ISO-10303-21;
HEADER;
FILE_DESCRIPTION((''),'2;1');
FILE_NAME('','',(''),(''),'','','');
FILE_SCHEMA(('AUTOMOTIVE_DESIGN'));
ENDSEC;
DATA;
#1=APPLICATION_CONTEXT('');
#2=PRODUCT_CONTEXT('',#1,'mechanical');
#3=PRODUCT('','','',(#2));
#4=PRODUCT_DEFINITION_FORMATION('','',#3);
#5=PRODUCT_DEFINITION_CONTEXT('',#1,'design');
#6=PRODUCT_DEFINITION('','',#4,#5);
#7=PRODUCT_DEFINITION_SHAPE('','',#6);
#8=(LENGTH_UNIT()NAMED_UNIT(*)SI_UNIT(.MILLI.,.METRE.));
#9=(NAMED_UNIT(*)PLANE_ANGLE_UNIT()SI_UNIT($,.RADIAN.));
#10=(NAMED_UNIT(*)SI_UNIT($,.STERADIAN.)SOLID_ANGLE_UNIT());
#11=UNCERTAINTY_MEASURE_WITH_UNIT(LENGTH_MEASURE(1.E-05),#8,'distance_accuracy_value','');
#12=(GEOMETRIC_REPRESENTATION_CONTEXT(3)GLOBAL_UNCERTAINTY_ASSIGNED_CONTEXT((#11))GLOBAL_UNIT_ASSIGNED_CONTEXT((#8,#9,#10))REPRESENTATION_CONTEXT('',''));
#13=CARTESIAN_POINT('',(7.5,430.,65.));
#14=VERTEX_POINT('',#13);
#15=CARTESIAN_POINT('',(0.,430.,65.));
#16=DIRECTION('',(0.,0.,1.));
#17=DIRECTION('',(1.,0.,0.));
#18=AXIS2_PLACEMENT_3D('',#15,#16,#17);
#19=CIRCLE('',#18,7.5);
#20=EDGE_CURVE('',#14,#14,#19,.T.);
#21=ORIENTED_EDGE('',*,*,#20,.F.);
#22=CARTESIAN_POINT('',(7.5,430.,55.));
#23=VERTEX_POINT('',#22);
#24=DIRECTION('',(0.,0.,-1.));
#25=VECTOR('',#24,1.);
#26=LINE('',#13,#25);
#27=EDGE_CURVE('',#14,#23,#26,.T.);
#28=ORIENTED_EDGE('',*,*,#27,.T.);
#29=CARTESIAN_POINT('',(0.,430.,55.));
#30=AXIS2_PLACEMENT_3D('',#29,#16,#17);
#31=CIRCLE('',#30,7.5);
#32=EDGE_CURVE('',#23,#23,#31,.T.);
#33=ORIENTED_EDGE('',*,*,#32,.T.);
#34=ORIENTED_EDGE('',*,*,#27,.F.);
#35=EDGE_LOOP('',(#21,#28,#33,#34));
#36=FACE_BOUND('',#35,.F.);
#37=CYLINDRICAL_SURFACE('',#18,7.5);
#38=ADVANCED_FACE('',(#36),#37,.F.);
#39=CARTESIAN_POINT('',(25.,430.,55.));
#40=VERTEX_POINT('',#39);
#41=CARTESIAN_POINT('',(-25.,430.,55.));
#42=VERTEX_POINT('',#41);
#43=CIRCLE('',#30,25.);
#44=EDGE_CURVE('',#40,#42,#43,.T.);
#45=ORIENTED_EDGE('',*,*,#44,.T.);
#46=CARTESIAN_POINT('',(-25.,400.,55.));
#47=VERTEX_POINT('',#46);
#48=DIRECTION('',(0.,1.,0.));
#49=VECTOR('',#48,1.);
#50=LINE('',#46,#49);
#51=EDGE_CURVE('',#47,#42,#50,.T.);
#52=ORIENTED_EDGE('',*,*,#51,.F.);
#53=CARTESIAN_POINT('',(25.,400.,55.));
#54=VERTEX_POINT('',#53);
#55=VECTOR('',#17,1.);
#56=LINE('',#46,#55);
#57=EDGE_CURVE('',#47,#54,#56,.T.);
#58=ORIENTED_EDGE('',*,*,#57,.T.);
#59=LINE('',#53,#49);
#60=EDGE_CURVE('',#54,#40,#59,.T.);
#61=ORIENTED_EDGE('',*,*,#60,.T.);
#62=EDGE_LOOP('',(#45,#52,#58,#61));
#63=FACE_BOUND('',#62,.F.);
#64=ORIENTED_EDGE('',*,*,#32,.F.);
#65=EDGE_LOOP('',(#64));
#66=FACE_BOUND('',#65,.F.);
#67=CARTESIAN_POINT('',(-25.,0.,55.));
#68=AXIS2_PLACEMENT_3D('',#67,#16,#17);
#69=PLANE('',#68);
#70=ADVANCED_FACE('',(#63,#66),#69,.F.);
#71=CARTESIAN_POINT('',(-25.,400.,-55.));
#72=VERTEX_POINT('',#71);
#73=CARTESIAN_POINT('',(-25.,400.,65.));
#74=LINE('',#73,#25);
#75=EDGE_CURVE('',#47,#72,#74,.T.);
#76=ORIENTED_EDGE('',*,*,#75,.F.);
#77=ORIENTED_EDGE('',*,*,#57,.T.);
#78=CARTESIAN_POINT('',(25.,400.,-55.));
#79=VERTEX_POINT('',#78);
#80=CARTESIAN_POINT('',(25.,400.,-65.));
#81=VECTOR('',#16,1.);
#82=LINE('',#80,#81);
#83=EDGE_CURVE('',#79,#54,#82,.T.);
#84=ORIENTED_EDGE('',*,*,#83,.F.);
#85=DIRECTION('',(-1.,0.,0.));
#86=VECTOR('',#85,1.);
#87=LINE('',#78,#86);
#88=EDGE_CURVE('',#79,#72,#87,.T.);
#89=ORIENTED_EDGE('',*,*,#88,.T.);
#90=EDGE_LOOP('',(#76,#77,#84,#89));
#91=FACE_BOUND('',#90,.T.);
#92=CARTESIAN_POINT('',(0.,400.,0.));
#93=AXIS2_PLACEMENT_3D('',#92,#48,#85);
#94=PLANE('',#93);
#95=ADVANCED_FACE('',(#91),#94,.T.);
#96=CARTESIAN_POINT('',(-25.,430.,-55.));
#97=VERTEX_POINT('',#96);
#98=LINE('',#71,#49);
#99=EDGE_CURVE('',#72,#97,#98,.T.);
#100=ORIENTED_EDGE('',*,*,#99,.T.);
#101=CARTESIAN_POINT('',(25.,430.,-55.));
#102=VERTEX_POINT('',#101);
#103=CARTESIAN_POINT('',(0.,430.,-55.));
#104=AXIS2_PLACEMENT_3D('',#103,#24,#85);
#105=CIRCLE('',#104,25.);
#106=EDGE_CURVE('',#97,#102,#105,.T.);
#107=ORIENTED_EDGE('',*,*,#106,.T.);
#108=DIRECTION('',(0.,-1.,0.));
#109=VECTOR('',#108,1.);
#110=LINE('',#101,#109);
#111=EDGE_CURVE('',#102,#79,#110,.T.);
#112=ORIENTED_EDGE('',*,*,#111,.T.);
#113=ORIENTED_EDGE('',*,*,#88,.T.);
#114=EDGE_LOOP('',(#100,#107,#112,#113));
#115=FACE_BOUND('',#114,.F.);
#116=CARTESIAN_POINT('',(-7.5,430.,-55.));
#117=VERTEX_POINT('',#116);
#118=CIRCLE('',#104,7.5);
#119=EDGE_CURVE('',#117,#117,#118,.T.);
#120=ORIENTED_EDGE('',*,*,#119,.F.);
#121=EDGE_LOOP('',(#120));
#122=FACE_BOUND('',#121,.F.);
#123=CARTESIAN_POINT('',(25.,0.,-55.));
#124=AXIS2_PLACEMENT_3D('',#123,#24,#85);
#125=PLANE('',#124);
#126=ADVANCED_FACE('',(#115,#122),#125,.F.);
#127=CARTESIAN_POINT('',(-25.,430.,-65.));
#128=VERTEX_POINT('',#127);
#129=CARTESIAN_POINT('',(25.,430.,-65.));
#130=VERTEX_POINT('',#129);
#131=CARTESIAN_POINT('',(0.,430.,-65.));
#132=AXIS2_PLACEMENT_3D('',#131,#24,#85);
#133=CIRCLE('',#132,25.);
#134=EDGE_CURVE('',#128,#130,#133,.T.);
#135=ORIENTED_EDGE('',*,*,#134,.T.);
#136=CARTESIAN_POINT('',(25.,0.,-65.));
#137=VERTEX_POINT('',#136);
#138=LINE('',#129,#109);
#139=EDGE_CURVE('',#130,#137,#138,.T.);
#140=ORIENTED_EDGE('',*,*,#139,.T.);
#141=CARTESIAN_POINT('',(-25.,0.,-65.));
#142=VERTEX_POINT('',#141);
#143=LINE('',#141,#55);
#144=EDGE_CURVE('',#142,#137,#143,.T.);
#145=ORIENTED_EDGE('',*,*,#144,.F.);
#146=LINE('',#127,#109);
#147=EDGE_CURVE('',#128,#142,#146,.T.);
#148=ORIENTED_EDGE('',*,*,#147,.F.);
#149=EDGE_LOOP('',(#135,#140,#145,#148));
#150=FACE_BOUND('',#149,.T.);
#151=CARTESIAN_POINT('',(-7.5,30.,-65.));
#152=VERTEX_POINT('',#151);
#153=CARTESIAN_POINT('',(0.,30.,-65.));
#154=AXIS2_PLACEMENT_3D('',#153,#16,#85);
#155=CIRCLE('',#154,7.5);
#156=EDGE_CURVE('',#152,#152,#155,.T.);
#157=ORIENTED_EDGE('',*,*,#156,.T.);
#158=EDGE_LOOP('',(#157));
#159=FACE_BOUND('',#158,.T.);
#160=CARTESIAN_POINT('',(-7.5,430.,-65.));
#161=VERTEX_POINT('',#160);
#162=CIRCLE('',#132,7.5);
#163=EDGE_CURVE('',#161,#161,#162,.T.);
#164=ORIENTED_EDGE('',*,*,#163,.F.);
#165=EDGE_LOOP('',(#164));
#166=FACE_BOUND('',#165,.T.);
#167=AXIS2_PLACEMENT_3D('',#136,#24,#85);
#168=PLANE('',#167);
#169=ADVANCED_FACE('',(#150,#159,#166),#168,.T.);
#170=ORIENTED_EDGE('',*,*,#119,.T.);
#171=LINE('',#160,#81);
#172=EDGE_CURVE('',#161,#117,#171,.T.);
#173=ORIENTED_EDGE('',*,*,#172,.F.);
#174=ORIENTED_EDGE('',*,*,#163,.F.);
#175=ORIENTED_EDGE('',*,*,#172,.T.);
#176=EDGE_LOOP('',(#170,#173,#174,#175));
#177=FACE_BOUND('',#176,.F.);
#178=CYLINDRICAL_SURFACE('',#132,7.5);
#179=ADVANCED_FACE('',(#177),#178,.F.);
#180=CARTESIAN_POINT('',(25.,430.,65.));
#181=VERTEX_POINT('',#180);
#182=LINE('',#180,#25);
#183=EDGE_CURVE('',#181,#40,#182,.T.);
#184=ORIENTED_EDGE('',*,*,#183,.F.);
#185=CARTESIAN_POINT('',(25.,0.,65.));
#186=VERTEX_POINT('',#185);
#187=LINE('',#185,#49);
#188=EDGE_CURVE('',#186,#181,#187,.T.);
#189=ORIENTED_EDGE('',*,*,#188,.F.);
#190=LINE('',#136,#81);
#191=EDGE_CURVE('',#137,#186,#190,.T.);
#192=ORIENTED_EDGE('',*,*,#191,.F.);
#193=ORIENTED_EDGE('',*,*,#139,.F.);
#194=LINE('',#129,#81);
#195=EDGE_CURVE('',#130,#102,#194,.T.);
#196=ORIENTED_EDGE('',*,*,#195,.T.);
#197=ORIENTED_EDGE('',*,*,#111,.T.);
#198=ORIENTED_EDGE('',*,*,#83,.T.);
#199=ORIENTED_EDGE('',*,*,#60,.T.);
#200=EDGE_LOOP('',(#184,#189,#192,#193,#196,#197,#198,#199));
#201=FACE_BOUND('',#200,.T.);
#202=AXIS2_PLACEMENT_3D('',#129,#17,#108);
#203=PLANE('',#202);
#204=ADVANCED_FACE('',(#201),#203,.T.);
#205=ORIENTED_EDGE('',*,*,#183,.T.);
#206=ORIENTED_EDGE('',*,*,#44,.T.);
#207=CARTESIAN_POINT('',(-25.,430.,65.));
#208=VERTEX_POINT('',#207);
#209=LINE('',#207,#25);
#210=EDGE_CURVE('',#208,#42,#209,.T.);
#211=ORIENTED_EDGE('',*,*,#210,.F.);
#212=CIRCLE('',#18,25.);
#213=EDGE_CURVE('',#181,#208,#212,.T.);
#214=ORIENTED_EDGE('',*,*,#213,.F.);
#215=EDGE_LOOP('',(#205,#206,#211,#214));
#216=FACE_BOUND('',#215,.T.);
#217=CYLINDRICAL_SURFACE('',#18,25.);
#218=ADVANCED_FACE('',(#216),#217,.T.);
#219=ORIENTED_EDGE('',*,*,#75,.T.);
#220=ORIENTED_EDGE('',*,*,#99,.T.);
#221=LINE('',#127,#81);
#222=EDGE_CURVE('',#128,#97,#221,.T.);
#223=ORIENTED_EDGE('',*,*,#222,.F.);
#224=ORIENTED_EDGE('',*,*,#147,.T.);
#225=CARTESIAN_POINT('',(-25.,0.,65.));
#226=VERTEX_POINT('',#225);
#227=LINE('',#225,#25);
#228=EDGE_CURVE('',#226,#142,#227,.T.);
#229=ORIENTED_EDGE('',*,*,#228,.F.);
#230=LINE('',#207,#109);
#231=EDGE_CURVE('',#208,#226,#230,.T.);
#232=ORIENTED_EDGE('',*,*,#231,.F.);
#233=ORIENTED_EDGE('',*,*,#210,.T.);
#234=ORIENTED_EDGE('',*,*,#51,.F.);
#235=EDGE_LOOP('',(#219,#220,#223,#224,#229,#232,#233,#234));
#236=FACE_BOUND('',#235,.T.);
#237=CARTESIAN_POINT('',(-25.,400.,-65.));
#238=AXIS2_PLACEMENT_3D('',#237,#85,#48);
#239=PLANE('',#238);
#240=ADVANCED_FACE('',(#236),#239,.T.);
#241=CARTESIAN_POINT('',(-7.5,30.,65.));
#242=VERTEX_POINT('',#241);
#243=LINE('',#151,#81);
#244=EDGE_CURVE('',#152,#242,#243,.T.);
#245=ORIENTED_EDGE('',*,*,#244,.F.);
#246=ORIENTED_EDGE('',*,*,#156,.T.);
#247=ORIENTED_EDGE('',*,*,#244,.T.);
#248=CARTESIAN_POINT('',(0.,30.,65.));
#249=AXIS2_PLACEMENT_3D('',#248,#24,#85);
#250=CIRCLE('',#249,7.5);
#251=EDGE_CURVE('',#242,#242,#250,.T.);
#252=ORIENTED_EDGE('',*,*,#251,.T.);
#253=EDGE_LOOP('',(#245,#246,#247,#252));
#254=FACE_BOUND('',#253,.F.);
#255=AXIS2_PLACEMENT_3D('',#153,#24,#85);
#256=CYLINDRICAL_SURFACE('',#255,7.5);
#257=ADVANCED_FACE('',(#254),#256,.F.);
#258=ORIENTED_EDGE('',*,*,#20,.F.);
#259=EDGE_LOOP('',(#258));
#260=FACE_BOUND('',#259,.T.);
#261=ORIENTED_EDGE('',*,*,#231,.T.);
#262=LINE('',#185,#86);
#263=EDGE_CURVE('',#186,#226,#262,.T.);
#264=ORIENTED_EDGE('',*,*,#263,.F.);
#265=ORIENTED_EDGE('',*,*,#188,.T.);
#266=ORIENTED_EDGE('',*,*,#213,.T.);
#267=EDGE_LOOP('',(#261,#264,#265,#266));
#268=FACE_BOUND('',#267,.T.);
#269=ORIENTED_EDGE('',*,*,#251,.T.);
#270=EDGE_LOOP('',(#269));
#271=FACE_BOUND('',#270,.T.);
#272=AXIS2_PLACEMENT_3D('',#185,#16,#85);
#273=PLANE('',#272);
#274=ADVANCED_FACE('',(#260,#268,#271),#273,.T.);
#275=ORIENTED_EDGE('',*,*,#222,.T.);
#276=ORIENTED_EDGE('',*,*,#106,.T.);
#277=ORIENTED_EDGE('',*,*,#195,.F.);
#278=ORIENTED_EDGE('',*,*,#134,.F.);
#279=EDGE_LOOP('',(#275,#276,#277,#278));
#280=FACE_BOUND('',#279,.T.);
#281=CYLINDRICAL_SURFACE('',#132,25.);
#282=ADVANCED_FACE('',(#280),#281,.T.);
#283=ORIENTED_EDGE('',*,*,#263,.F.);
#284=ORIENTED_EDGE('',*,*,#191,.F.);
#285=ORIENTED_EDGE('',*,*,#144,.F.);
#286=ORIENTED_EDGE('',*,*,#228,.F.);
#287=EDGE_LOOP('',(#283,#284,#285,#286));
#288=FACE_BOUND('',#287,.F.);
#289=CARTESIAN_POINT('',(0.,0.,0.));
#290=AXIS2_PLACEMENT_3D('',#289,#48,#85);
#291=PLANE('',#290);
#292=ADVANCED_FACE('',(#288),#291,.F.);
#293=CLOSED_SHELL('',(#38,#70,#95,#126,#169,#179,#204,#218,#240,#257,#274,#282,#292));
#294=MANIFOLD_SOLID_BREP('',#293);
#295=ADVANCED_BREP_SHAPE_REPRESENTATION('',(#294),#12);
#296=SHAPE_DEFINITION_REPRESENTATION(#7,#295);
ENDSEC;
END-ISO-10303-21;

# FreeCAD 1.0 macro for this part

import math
import FreeCAD as App
import Part
import Sketcher

V = App.Vector
Q = App.Units.Quantity

doc = App.newDocument("Part")
body = doc.addObject("PartDesign::Body", "Body")

sketch1 = body.newObject("Sketcher::SketchObject", "Sketch")
sketch1.AttachmentSupport = (doc.getObject("XZ_Plane"), [""])
sketch1.MapMode = "FlatFace"
sketch1.addGeometry([
    Part.LineSegment(V(-25, 65, 0), V(25, 65, 0)),
    Part.LineSegment(V(25, 65, 0), V(25, -65, 0)),
    Part.LineSegment(V(25, -65, 0), V(-25, -65, 0)),
    Part.LineSegment(V(-25, -65, 0), V(-25, 65, 0)),
], False)
sketch1.addConstraint([
    Sketcher.Constraint("Coincident", 0, 2, 1, 1),
    Sketcher.Constraint("Coincident", 1, 2, 2, 1),
    Sketcher.Constraint("Coincident", 2, 2, 3, 1),
    Sketcher.Constraint("Coincident", 3, 2, 0, 1),
    Sketcher.Constraint("Horizontal", 0),
    Sketcher.Constraint("Vertical", 1),
    Sketcher.Constraint("Horizontal", 2),
    Sketcher.Constraint("Vertical", 3),
    Sketcher.Constraint("Symmetric", 0, 2, 2, 2, -1, 1),
    Sketcher.Constraint("DistanceX", 0, 1, 0, 2, Q("50 mm")),
    Sketcher.Constraint("DistanceY", 1, 2, 1, 1, Q("130 mm")),
])
pad1 = body.newObject("PartDesign::Pad", "Pad")
pad1.Profile = sketch1
pad1.Length = 400
pad1.Reversed = True

sketch2 = body.newObject("Sketcher::SketchObject", "Sketch001")
sketch2.AttachmentSupport = (doc.getObject("XY_Plane"), [""])
sketch2.MapMode = "FlatFace"
sketch2.AttachmentOffset = App.Placement(V(0, 0, 65), App.Rotation())
sketch2.addGeometry([
    Part.LineSegment(V(-25, 430, 0), V(-25, 400, 0)),
    Part.LineSegment(V(-25, 400, 0), V(25, 400, 0)),
    Part.LineSegment(V(25, 400, 0), V(25, 430, 0)),
    Part.ArcOfCircle(Part.Circle(V(0, 430, 0), V(0, 0, 1), 25), math.radians(0), math.radians(180)),
    Part.Circle(V(0, 430, 0), V(0, 0, 1), 8),
], False)
sketch2.addConstraint([
    Sketcher.Constraint("Coincident", 0, 2, 1, 1),
    Sketcher.Constraint("Coincident", 1, 2, 2, 1),
    Sketcher.Constraint("Tangent", 2, 2, 3, 1),
    Sketcher.Constraint("Tangent", 3, 2, 0, 1),
    Sketcher.Constraint("Vertical", 0),
    Sketcher.Constraint("Horizontal", 1),
    Sketcher.Constraint("Vertical", 2),
    Sketcher.Constraint("Coincident", 4, 3, 3, 3),
    Sketcher.Constraint("PointOnObject", 3, 3, -2),
    Sketcher.Constraint("Diameter", 4, Q("15 mm")),
    Sketcher.Constraint("DistanceY", 0, 2, 0, 1, Q("30 mm")),
    Sketcher.Constraint("Radius", 3, Q("25 mm")),
    Sketcher.Constraint("DistanceY", -1, 1, 3, 3, Q("430 mm")),
])
pad2 = body.newObject("PartDesign::Pad", "Pad001")
pad2.Profile = sketch2
pad2.Length = 10
pad2.Reversed = True

sketch3 = body.newObject("Sketcher::SketchObject", "Sketch002")
sketch3.AttachmentSupport = (doc.getObject("XY_Plane"), [""])
sketch3.MapMode = "FlatFace"
sketch3.AttachmentOffset = App.Placement(V(0, 0, -65), App.Rotation())
sketch3.addGeometry([
    Part.LineSegment(V(-25, 400, 0), V(-25, 430, 0)),
    Part.ArcOfCircle(Part.Circle(V(0, 430, 0), V(0, 0, 1), 25), math.radians(0), math.radians(180)),
    Part.LineSegment(V(25, 430, 0), V(25, 400, 0)),
    Part.LineSegment(V(25, 400, 0), V(-25, 400, 0)),
    Part.Circle(V(0, 430, 0), V(0, 0, 1), 8),
], False)
sketch3.addConstraint([
    Sketcher.Constraint("Tangent", 0, 2, 1, 2),
    Sketcher.Constraint("Tangent", 1, 1, 2, 1),
    Sketcher.Constraint("Coincident", 2, 2, 3, 1),
    Sketcher.Constraint("Coincident", 3, 2, 0, 1),
    Sketcher.Constraint("Vertical", 0),
    Sketcher.Constraint("Vertical", 2),
    Sketcher.Constraint("Horizontal", 3),
    Sketcher.Constraint("Coincident", 4, 3, 1, 3),
    Sketcher.Constraint("PointOnObject", 1, 3, -2),
    Sketcher.Constraint("Diameter", 4, Q("15 mm")),
    Sketcher.Constraint("Radius", 1, Q("25 mm")),
    Sketcher.Constraint("DistanceY", 0, 1, 0, 2, Q("30 mm")),
    Sketcher.Constraint("DistanceY", -1, 1, 1, 3, Q("430 mm")),
])
pad3 = body.newObject("PartDesign::Pad", "Pad002")
pad3.Profile = sketch3
pad3.Length = 10

sketch4 = body.newObject("Sketcher::SketchObject", "Sketch003")
sketch4.AttachmentSupport = (doc.getObject("XY_Plane"), [""])
sketch4.MapMode = "FlatFace"
sketch4.AttachmentOffset = App.Placement(V(0, 0, -65), App.Rotation())
sketch4.addGeometry(Part.Circle(V(0, 30, 0), V(0, 0, 1), 8), False)
sketch4.addConstraint([
    Sketcher.Constraint("PointOnObject", 0, 3, -2),
    Sketcher.Constraint("Diameter", 0, Q("15 mm")),
    Sketcher.Constraint("DistanceY", -1, 1, 0, 3, Q("30 mm")),
])
pocket1 = body.newObject("PartDesign::Pocket", "Pocket")
pocket1.Profile = sketch4
pocket1.Type = "UpToFirst"
pocket1.Reversed = True

doc.recompute()
